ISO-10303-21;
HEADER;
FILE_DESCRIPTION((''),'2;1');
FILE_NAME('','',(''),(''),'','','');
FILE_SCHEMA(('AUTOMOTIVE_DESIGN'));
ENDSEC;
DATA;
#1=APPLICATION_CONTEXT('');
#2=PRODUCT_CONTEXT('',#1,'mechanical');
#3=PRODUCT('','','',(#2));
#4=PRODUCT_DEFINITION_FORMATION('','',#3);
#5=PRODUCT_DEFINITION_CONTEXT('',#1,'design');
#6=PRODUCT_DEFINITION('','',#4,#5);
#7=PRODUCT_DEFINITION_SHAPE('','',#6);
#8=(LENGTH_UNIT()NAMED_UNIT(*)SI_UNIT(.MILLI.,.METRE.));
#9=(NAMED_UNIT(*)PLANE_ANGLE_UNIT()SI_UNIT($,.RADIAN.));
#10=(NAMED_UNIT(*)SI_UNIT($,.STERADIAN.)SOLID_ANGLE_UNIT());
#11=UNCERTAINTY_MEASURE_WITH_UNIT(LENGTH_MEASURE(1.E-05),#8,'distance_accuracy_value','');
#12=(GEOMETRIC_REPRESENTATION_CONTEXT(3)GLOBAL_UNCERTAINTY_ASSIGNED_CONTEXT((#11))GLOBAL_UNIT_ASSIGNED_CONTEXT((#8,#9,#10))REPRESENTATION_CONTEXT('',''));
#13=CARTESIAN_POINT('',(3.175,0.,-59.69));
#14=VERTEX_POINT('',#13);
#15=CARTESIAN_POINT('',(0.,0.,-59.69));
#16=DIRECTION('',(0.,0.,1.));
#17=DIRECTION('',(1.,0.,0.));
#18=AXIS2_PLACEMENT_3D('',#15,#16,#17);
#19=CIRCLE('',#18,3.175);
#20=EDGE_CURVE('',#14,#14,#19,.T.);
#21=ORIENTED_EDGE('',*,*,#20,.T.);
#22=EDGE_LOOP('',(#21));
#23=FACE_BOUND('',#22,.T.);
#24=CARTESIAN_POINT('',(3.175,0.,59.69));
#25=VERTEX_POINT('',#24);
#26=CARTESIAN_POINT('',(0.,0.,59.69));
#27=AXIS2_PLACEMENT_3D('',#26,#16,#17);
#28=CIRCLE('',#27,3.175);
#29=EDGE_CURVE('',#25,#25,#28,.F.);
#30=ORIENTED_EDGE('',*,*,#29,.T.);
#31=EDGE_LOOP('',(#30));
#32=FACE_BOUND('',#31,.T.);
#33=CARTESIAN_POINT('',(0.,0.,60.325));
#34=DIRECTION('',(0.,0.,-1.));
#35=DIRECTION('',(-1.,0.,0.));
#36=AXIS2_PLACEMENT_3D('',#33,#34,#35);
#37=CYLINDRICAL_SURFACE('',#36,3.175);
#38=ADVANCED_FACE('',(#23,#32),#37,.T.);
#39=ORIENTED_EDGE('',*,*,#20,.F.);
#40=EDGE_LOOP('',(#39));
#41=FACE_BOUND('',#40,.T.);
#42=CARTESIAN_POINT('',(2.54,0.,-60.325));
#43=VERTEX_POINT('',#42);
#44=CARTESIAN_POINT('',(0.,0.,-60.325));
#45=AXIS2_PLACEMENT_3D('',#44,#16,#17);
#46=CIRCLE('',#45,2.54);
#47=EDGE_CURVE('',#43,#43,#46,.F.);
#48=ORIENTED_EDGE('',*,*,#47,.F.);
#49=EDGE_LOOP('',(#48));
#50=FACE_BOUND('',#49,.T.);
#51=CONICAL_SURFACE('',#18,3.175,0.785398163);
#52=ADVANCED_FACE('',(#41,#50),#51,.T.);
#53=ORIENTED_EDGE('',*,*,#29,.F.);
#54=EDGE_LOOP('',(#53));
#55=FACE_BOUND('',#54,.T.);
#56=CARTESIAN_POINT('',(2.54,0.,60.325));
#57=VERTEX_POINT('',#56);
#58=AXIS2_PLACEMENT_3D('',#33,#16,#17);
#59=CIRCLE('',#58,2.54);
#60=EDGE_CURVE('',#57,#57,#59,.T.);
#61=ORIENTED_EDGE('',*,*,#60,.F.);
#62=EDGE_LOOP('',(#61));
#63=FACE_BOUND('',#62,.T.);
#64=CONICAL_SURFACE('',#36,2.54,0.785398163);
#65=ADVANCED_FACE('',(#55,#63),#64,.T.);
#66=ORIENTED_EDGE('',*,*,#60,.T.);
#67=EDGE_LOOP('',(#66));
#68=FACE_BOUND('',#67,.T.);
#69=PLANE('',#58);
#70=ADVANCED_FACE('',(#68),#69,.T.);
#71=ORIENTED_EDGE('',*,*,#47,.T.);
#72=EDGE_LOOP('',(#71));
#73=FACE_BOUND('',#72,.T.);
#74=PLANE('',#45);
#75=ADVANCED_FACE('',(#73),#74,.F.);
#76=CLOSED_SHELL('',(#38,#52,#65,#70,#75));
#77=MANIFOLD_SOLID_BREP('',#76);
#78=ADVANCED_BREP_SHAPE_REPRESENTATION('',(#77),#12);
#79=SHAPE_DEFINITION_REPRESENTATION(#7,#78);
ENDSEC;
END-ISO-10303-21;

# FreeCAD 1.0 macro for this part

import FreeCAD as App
import Part
import Sketcher
from FreeCAD import Vector
Q = App.Units.Quantity


def edges_at(feature, points):
    """Names of the edges that pass closest to the given points."""
    edges = feature.Shape.Edges
    near = lambda p: min(range(len(edges)), key=lambda i: edges[i].distToShape(Part.Vertex(*p))[0])
    return sorted({f"Edge{near(p) + 1}" for p in points})

doc = App.newDocument("Part")
body = doc.addObject("PartDesign::Body", "Body")

sketch1 = body.newObject("Sketcher::SketchObject", "Sketch")
sketch1.AttachmentSupport = (doc.getObject("XY_Plane"), [""])
sketch1.MapMode = "FlatFace"
sketch1.addGeometry(Part.Circle(Vector(0, 0, 0), Vector(0, 0, 1), 3.2), False)
sketch1.addConstraint(Sketcher.Constraint("Coincident", 0, 3, -1, 1))
sketch1.addConstraint(Sketcher.Constraint("Diameter", 0, Q("0.25 in")))
pad1 = body.newObject("PartDesign::Pad", "Pad")
pad1.Profile = sketch1
pad1.Length = Q("4.75 in")
pad1.Midplane = True
doc.recompute()

chamfer = body.newObject("PartDesign::Chamfer", "Chamfer")
chamfer.Base = (pad1, edges_at(pad1, [(-3.175, 0, -60.325), (-3.175, 0, 60.325)]))
chamfer.Size = Q("0.025 in")

doc.recompute()
